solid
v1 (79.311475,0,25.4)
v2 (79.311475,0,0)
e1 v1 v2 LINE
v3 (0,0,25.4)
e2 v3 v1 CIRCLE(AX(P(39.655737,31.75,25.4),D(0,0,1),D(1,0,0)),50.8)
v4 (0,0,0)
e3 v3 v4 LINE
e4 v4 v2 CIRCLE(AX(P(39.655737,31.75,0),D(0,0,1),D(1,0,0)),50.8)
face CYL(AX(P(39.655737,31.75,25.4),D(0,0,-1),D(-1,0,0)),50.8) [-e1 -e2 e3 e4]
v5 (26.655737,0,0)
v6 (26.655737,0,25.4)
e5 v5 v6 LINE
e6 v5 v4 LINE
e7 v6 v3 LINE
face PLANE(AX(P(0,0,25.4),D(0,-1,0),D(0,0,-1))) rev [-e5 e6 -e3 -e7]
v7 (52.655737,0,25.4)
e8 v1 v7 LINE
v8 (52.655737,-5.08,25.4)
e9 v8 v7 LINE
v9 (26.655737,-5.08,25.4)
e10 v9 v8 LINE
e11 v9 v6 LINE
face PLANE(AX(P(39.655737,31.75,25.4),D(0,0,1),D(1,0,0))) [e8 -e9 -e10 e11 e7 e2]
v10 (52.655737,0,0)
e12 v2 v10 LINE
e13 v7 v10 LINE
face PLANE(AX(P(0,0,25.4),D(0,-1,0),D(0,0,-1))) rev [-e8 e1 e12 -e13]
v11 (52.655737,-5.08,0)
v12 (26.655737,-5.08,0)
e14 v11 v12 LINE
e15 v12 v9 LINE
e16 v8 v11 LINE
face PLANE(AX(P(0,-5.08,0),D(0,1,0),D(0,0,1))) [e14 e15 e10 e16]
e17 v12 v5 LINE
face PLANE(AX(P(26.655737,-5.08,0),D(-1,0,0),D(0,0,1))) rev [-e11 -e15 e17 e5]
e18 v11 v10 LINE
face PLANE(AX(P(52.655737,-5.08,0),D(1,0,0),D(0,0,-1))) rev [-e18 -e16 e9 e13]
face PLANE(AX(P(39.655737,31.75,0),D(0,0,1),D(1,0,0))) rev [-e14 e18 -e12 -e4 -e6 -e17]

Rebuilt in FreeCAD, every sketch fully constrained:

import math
import FreeCAD as App
import Part
import Sketcher

V = App.Vector
Q = App.Units.Quantity


def add_polygon(sketch, points):
    """Adds a closed chain of lines whose ends are joined by coincident constraints."""
    first, n = sketch.GeometryCount, len(points)
    for a, b in zip(points, points[1:] + points[:1]):
        sketch.addGeometry(Part.LineSegment(App.Vector(*a, 0), App.Vector(*b, 0)), False)
    for i in range(n):
        sketch.addConstraint(Sketcher.Constraint("Coincident", first + i, 2, first + (i + 1) % n, 1))

doc = App.newDocument("Part")
body = doc.addObject("PartDesign::Body", "Body")

# Sketch on XY plane
sketch1 = doc.addObject("Sketcher::SketchObject", "Sketch")
body.addObject(sketch1)
sketch1.AttachmentSupport = (doc.XY_Plane, [""])
sketch1.MapMode = "FlatFace"
sketch1.addGeometry(Part.LineSegment(V(79, 0, 0), V(0, 0, 0)), False)
sketch1.addGeometry(Part.ArcOfCircle(Part.Circle(V(40, 32, 0), V(0, 0, 1), 51), math.radians(-141), math.radians(-39)), False)
sketch1.addConstraint(Sketcher.Constraint("Coincident", 0, 1, 1, 2))
sketch1.addConstraint(Sketcher.Constraint("Coincident", 1, 1, 0, 2))
sketch1.addConstraint(Sketcher.Constraint("Horizontal", 0))
sketch1.addConstraint(Sketcher.Constraint("Coincident", 1, 1, -1, 1))
sketch1.addConstraint(Sketcher.Constraint("Radius", 1, Q("2 in")))
sketch1.addConstraint(Sketcher.Constraint("DistanceY", -1, 1, 1, 3, Q("1.25 in")))
pad1 = doc.addObject("PartDesign::Pad", "Pad")
body.addObject(pad1)
pad1.Profile = sketch1
pad1.Length = Q("1 in")

# Sketch on XZ plane
sketch2 = doc.addObject("Sketcher::SketchObject", "Sketch001")
body.addObject(sketch2)
sketch2.AttachmentSupport = (doc.XZ_Plane, [""])
sketch2.MapMode = "FlatFace"
add_polygon(sketch2, [(27, 0), (27, 25), (53, 25), (53, 0)])  # lines 0-3
sketch2.addConstraint(Sketcher.Constraint("Vertical", 0))
sketch2.addConstraint(Sketcher.Constraint("Horizontal", 1))
sketch2.addConstraint(Sketcher.Constraint("Vertical", 2))
sketch2.addConstraint(Sketcher.Constraint("Horizontal", 3))
sketch2.addConstraint(Sketcher.Constraint("PointOnObject", 2, 2, -1))
sketch2.addConstraint(Sketcher.Constraint("DistanceY", 0, 1, 0, 2, Q("1 in")))
sketch2.addConstraint(Sketcher.Constraint("DistanceX", 1, 1, 1, 2, 26.0))
sketch2.addConstraint(Sketcher.Constraint("DistanceX", -1, 1, 0, 2, 26.655737))
pocket1 = doc.addObject("PartDesign::Pocket", "Pocket")
body.addObject(pocket1)
pocket1.Profile = sketch2
pocket1.Length = Q("0.2 in")
pocket1.Reversed = True

doc.recompute()
